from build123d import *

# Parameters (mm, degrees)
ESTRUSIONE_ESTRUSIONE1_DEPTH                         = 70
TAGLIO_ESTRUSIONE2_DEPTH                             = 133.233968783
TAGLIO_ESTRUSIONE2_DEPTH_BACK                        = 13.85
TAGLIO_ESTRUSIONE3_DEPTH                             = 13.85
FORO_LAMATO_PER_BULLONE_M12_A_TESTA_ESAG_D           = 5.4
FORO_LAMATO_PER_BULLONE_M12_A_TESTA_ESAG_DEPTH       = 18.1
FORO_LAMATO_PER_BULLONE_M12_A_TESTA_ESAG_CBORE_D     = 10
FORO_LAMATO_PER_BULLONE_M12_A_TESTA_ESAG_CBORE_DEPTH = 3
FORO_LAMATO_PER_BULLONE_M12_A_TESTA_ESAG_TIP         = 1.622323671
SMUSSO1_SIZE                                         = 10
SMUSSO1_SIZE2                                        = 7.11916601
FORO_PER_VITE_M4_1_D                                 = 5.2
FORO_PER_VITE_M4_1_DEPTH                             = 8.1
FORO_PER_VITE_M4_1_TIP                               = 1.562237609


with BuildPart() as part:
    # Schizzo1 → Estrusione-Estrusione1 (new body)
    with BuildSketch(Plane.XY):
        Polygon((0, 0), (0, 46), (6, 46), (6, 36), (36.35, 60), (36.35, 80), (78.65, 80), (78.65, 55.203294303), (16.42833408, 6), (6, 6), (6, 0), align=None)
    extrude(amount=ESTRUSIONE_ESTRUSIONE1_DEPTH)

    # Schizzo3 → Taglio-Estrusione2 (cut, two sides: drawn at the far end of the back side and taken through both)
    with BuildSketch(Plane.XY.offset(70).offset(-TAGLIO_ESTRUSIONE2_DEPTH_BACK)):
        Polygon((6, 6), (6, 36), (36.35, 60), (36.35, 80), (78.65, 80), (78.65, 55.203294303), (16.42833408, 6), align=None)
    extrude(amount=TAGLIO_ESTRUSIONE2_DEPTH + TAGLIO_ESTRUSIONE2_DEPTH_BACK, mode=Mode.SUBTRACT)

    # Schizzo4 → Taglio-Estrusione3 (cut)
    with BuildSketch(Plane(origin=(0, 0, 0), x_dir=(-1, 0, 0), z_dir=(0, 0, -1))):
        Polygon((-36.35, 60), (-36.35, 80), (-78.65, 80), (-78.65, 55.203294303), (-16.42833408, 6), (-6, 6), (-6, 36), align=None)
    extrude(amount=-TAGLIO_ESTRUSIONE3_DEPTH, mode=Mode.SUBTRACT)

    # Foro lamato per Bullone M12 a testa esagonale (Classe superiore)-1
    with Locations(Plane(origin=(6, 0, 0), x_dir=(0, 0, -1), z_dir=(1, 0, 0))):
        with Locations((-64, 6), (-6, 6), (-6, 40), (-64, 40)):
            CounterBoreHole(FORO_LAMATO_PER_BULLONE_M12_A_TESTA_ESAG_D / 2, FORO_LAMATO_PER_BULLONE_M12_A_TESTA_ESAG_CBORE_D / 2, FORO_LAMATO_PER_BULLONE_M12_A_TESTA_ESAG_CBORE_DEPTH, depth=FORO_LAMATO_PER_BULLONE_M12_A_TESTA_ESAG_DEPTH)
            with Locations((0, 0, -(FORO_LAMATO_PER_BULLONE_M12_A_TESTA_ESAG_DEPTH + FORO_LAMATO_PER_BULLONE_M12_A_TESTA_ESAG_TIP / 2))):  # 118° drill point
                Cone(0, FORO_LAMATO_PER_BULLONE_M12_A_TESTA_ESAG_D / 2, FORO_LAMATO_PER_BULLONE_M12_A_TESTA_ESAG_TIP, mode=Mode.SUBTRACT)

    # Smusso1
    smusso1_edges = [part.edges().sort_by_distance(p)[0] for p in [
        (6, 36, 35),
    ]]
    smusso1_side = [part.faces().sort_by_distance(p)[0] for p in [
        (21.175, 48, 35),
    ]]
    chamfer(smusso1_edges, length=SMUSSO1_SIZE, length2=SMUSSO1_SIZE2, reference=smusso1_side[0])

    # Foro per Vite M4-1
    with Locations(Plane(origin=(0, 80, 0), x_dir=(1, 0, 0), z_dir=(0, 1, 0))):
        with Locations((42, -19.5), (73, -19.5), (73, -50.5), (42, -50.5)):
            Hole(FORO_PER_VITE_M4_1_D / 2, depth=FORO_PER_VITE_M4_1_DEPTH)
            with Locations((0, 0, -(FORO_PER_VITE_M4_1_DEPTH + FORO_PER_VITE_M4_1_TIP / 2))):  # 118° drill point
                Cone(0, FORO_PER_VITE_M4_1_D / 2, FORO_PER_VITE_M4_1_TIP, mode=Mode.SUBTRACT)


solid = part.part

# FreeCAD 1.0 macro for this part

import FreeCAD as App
import Part
import Sketcher
Q = App.Units.Quantity


def edges_at(feature, points):
    """Names of the edges that pass closest to the given points."""
    edges = feature.Shape.Edges
    near = lambda p: min(range(len(edges)), key=lambda i: edges[i].distToShape(Part.Vertex(*p))[0])
    return sorted({f"Edge{near(p) + 1}" for p in points})


def add_polygon(sketch, points):
    """Adds a closed chain of lines whose ends are joined by coincident constraints."""
    first, n = sketch.GeometryCount, len(points)
    for a, b in zip(points, points[1:] + points[:1]):
        sketch.addGeometry(Part.LineSegment(App.Vector(*a, 0), App.Vector(*b, 0)), False)
    for i in range(n):
        sketch.addConstraint(Sketcher.Constraint("Coincident", first + i, 2, first + (i + 1) % n, 1))

doc = App.newDocument("Part")
body = doc.addObject("PartDesign::Body", "Body")

sketch1 = body.newObject("Sketcher::SketchObject", "Sketch")
sketch1.AttachmentSupport = (doc.getObject("XY_Plane"), [""])
sketch1.MapMode = "FlatFace"
add_polygon(sketch1, [(0, 46), (0, 0), (6, 0), (6, 6), (16.428334, 6), (78.65, 55.203294), (78.65, 80), (36.35, 80), (36.35, 60), (6, 36), (6, 46)])
sketch1.addConstraint(Sketcher.Constraint("Vertical", 0))
sketch1.addConstraint(Sketcher.Constraint("Horizontal", 1))
sketch1.addConstraint(Sketcher.Constraint("Vertical", 2))
sketch1.addConstraint(Sketcher.Constraint("Horizontal", 3))
sketch1.addConstraint(Sketcher.Constraint("Vertical", 5))
sketch1.addConstraint(Sketcher.Constraint("Horizontal", 6))
sketch1.addConstraint(Sketcher.Constraint("Vertical", 7))
sketch1.addConstraint(Sketcher.Constraint("Vertical", 9))
sketch1.addConstraint(Sketcher.Constraint("Horizontal", 10))
sketch1.addConstraint(Sketcher.Constraint("Coincident", 0, 2, -1, 1))
sketch1.addConstraint(Sketcher.Constraint("Parallel", 4, 8))
sketch1.addConstraint(Sketcher.Constraint("Vertical", 2, 2, 8, 2))
sketch1.addConstraint(Sketcher.Constraint("Equal", 10, 2))
sketch1.addConstraint(Sketcher.Constraint("DistanceX", 1, 1, 1, 2, Q("6 mm")))
sketch1.addConstraint(Sketcher.Constraint("DistanceY", 0, 2, 0, 1, Q("46 mm")))
sketch1.addConstraint(Sketcher.Constraint("DistanceY", 7, 2, 7, 1, Q("20 mm")))
sketch1.addConstraint(Sketcher.Constraint("DistanceY", 9, 1, 9, 2, Q("10 mm")))
sketch1.addConstraint(Sketcher.Constraint("DistanceX", 6, 2, 6, 1, Q("42.3 mm")))
sketch1.addConstraint(Sketcher.Constraint("DistanceY", -1, 1, 5, 2, Q("80 mm")))
sketch1.addConstraint(Sketcher.Constraint("DistanceX", -1, 1, 4, 2, Q("78.65 mm")))
sketch1.addConstraint(Sketcher.Constraint("Distance", 4, Q("79.325279 mm")))
pad1 = body.newObject("PartDesign::Pad", "Pad")
pad1.Profile = sketch1
pad1.Length = 70

sketch2 = body.newObject("Sketcher::SketchObject", "Sketch001")
sketch2.AttachmentSupport = (doc.getObject("XY_Plane"), [""])
sketch2.MapMode = "FlatFace"
sketch2.AttachmentOffset = App.Placement(App.Vector(0, 0, 70), App.Rotation())
add_polygon(sketch2, [(6, 36), (6, 6), (16.428334, 6), (78.65, 55.203294), (78.65, 80), (36.35, 80), (36.35, 60)])
sketch2.addConstraint(Sketcher.Constraint("Vertical", 0))
sketch2.addConstraint(Sketcher.Constraint("Horizontal", 1))
sketch2.addConstraint(Sketcher.Constraint("Vertical", 3))
sketch2.addConstraint(Sketcher.Constraint("Horizontal", 4))
sketch2.addConstraint(Sketcher.Constraint("Vertical", 5))
sketch2.addConstraint(Sketcher.Constraint("Parallel", 2, 6))
sketch2.addConstraint(Sketcher.Constraint("DistanceY", 0, 2, 0, 1, Q("30 mm")))
sketch2.addConstraint(Sketcher.Constraint("DistanceY", 5, 2, 5, 1, Q("20 mm")))
sketch2.addConstraint(Sketcher.Constraint("DistanceX", 4, 2, 4, 1, Q("42.3 mm")))
sketch2.addConstraint(Sketcher.Constraint("DistanceX", -1, 1, 0, 2, Q("6 mm")))
sketch2.addConstraint(Sketcher.Constraint("DistanceY", -1, 1, 0, 2, Q("6 mm")))
sketch2.addConstraint(Sketcher.Constraint("DistanceY", -1, 1, 3, 2, Q("80 mm")))
sketch2.addConstraint(Sketcher.Constraint("DistanceX", -1, 1, 2, 2, Q("78.65 mm")))
sketch2.addConstraint(Sketcher.Constraint("Distance", 2, Q("79.325279 mm")))
pocket1 = body.newObject("PartDesign::Pocket", "Pocket")
pocket1.Profile = sketch2
pocket1.Type = "TwoLengths"
pocket1.Length = 133.233969
pocket1.Length2 = 13.85
pocket1.Reversed = True

sketch3 = body.newObject("Sketcher::SketchObject", "Sketch002")
sketch3.AttachmentSupport = (doc.getObject("XY_Plane"), [""])
sketch3.MapMode = "FlatFace"
add_polygon(sketch3, [(36.35, 60), (36.35, 80), (78.65, 80), (78.65, 55.203294), (16.428334, 6), (6, 6), (6, 36)])
sketch3.addConstraint(Sketcher.Constraint("Vertical", 0))
sketch3.addConstraint(Sketcher.Constraint("Horizontal", 1))
sketch3.addConstraint(Sketcher.Constraint("Vertical", 2))
sketch3.addConstraint(Sketcher.Constraint("Horizontal", 4))
sketch3.addConstraint(Sketcher.Constraint("Vertical", 5))
sketch3.addConstraint(Sketcher.Constraint("Parallel", 3, 6))
sketch3.addConstraint(Sketcher.Constraint("DistanceY", 0, 1, 0, 2, Q("20 mm")))
sketch3.addConstraint(Sketcher.Constraint("DistanceY", 5, 1, 5, 2, Q("30 mm")))
sketch3.addConstraint(Sketcher.Constraint("DistanceX", 1, 1, 1, 2, Q("42.3 mm")))
sketch3.addConstraint(Sketcher.Constraint("DistanceY", -1, 1, 0, 2, Q("80 mm")))
sketch3.addConstraint(Sketcher.Constraint("DistanceY", -1, 1, 3, 2, Q("6 mm")))
sketch3.addConstraint(Sketcher.Constraint("DistanceX", -1, 1, 4, 2, Q("6 mm")))
sketch3.addConstraint(Sketcher.Constraint("DistanceX", -1, 1, 0, 2, Q("36.35 mm")))
sketch3.addConstraint(Sketcher.Constraint("Distance", 3, Q("79.325279 mm")))
pocket2 = body.newObject("PartDesign::Pocket", "Pocket001")
pocket2.Profile = sketch3
pocket2.Length = 13.85
pocket2.Reversed = True

sketch4 = body.newObject("Sketcher::SketchObject", "Sketch003")
sketch4.AttachmentSupport = (doc.getObject("YZ_Plane"), [""])
sketch4.MapMode = "FlatFace"
sketch4.AttachmentOffset = App.Placement(App.Vector(0, 0, 6), App.Rotation())
sketch4.addGeometry(Part.Circle(App.Vector(6, 64, 0), App.Vector(0, 0, 1), 2.7), False)
sketch4.addGeometry(Part.Circle(App.Vector(6, 6, 0), App.Vector(0, 0, 1), 2.7), False)
sketch4.addGeometry(Part.Circle(App.Vector(40, 6, 0), App.Vector(0, 0, 1), 2.7), False)
sketch4.addGeometry(Part.Circle(App.Vector(40, 64, 0), App.Vector(0, 0, 1), 2.7), False)
sketch4.addConstraint(Sketcher.Constraint("Equal", 0, 1))
sketch4.addConstraint(Sketcher.Constraint("Equal", 1, 2))
sketch4.addConstraint(Sketcher.Constraint("Equal", 2, 3))
sketch4.addConstraint(Sketcher.Constraint("Horizontal", 1, 3, 2, 3))
sketch4.addConstraint(Sketcher.Constraint("Horizontal", 0, 3, 3, 3))
sketch4.addConstraint(Sketcher.Constraint("Vertical", 0, 3, 1, 3))
sketch4.addConstraint(Sketcher.Constraint("Vertical", 2, 3, 3, 3))
sketch4.addConstraint(Sketcher.Constraint("Diameter", 0, Q("5.4 mm")))
sketch4.addConstraint(Sketcher.Constraint("DistanceX", -1, 1, 0, 3, Q("6 mm")))
sketch4.addConstraint(Sketcher.Constraint("DistanceY", -1, 1, 0, 3, Q("64 mm")))
sketch4.addConstraint(Sketcher.Constraint("DistanceY", -1, 1, 1, 3, Q("6 mm")))
sketch4.addConstraint(Sketcher.Constraint("DistanceX", -1, 1, 2, 3, Q("40 mm")))
doc.recompute()
hole = body.newObject("PartDesign::Hole", "Hole")
hole.Profile = sketch4
hole.ThreadType = "None"
hole.Diameter = 5.4
hole.DepthType = "Dimension"
hole.Depth = 18.1
hole.DrillPoint = "Angled"
hole.DrillPointAngle = 118
hole.HoleCutType = "Counterbore"
hole.HoleCutDiameter = 10
hole.HoleCutDepth = 3
doc.recompute()

chamfer = body.newObject("PartDesign::Chamfer", "Chamfer")
chamfer.Base = (hole, edges_at(hole, [(6, 36, 35)]))
chamfer.ChamferType = "Two distances"
chamfer.Size = 10
chamfer.Size2 = 7.119166
chamfer.FlipDirection = True

sketch5 = body.newObject("Sketcher::SketchObject", "Sketch004")
sketch5.AttachmentSupport = (doc.getObject("XZ_Plane"), [""])
sketch5.MapMode = "FlatFace"
sketch5.AttachmentOffset = App.Placement(App.Vector(0, 0, -80), App.Rotation())
sketch5.addGeometry(Part.Circle(App.Vector(42, 19.5, 0), App.Vector(0, 0, 1), 2.6), False)
sketch5.addGeometry(Part.Circle(App.Vector(73, 19.5, 0), App.Vector(0, 0, 1), 2.6), False)
sketch5.addGeometry(Part.Circle(App.Vector(73, 50.5, 0), App.Vector(0, 0, 1), 2.6), False)
sketch5.addGeometry(Part.Circle(App.Vector(42, 50.5, 0), App.Vector(0, 0, 1), 2.6), False)
sketch5.addConstraint(Sketcher.Constraint("Equal", 0, 1))
sketch5.addConstraint(Sketcher.Constraint("Equal", 1, 2))
sketch5.addConstraint(Sketcher.Constraint("Equal", 2, 3))
sketch5.addConstraint(Sketcher.Constraint("Horizontal", 0, 3, 1, 3))
sketch5.addConstraint(Sketcher.Constraint("Horizontal", 2, 3, 3, 3))
sketch5.addConstraint(Sketcher.Constraint("Vertical", 1, 3, 2, 3))
sketch5.addConstraint(Sketcher.Constraint("Vertical", 0, 3, 3, 3))
sketch5.addConstraint(Sketcher.Constraint("Diameter", 0, Q("5.2 mm")))
sketch5.addConstraint(Sketcher.Constraint("DistanceX", -1, 1, 0, 3, Q("42 mm")))
sketch5.addConstraint(Sketcher.Constraint("DistanceX", -1, 1, 1, 3, Q("73 mm")))
sketch5.addConstraint(Sketcher.Constraint("DistanceY", 1, 3, 2, 3, Q("31 mm")))
sketch5.addConstraint(Sketcher.Constraint("DistanceY", -1, 1, 0, 3, Q("19.5 mm")))
doc.recompute()
hole2 = body.newObject("PartDesign::Hole", "Hole001")
hole2.Profile = sketch5
hole2.ThreadType = "None"
hole2.Diameter = 5.2
hole2.DepthType = "Dimension"
hole2.Depth = 8.1
hole2.DrillPoint = "Angled"
hole2.DrillPointAngle = 118
hole2.Reversed = True

doc.recompute()
